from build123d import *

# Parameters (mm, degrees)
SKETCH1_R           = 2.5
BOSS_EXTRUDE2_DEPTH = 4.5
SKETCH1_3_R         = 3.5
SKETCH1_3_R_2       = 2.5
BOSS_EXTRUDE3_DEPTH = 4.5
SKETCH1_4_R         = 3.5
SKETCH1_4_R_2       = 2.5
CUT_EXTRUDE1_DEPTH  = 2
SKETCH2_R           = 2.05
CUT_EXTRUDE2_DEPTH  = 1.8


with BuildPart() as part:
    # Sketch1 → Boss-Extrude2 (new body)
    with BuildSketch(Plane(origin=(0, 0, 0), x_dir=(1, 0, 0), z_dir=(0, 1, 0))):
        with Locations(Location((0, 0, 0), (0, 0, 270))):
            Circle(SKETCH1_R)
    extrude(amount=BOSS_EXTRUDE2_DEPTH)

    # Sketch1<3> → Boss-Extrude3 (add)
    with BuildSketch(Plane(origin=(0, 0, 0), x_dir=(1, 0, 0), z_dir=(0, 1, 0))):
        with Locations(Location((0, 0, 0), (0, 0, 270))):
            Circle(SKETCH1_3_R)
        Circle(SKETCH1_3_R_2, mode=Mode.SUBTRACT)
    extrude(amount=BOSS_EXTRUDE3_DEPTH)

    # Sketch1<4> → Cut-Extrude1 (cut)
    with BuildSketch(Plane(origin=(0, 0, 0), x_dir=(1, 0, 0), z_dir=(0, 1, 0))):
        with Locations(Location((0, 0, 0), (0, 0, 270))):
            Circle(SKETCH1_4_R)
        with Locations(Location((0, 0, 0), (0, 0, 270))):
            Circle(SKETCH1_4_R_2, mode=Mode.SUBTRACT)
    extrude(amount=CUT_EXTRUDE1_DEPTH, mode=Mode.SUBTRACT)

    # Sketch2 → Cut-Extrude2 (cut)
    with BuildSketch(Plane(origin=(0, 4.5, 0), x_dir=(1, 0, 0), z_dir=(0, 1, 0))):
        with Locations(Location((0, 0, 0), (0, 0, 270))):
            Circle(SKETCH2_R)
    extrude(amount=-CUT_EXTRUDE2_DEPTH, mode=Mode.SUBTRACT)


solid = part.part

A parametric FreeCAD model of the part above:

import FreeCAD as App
import Part
import Sketcher
from FreeCAD import Vector

doc = App.newDocument("Part")
body = doc.addObject("PartDesign::Body", "Body")

# Sketch on XZ plane
sketch1 = body.newObject("Sketcher::SketchObject", "Sketch")
sketch1.AttachmentSupport = (doc.getObject("XZ_Plane"), [""])
sketch1.MapMode = "FlatFace"
sketch1.addGeometry(Part.Circle(Vector(0, 0, 0), Vector(0, 0, 1), 2.5), False)
sketch1.addConstraint(Sketcher.Constraint("Coincident", 0, 3, -1, 1))
sketch1.addConstraint(Sketcher.Constraint("Diameter", 0, 5.0))
pad1 = body.newObject("PartDesign::Pad", "Pad")
pad1.Profile = sketch1
pad1.Length = 4.5
pad1.Reversed = True

# Sketch on XZ plane
sketch2 = body.newObject("Sketcher::SketchObject", "Sketch001")
sketch2.AttachmentSupport = (doc.getObject("XZ_Plane"), [""])
sketch2.MapMode = "FlatFace"
sketch2.addGeometry(Part.Circle(Vector(0, 0, 0), Vector(0, 0, 1), 3.5), False)
sketch2.addGeometry(Part.Circle(Vector(0, 0, 0), Vector(0, 0, 1), 2.5), False)
sketch2.addConstraint(Sketcher.Constraint("Coincident", 0, 3, -1, 1))
sketch2.addConstraint(Sketcher.Constraint("Coincident", 1, 3, -1, 1))
sketch2.addConstraint(Sketcher.Constraint("Diameter", 0, 7.0))
sketch2.addConstraint(Sketcher.Constraint("Diameter", 1, 5.0))
pad2 = body.newObject("PartDesign::Pad", "Pad001")
pad2.Profile = sketch2
pad2.Length = 4.5
pad2.Reversed = True

# Sketch on XZ plane
sketch3 = body.newObject("Sketcher::SketchObject", "Sketch002")
sketch3.AttachmentSupport = (doc.getObject("XZ_Plane"), [""])
sketch3.MapMode = "FlatFace"
sketch3.addGeometry(Part.Circle(Vector(0, 0, 0), Vector(0, 0, 1), 3.5), False)
sketch3.addGeometry(Part.Circle(Vector(0, 0, 0), Vector(0, 0, 1), 2.5), False)
sketch3.addConstraint(Sketcher.Constraint("Coincident", 0, 3, -1, 1))
sketch3.addConstraint(Sketcher.Constraint("Coincident", 1, 3, -1, 1))
sketch3.addConstraint(Sketcher.Constraint("Diameter", 0, 7.0))
sketch3.addConstraint(Sketcher.Constraint("Diameter", 1, 5.0))
pocket1 = body.newObject("PartDesign::Pocket", "Pocket")
pocket1.Profile = sketch3
pocket1.Length = 2

# Sketch on XZ plane
sketch4 = body.newObject("Sketcher::SketchObject", "Sketch003")
sketch4.AttachmentSupport = (doc.getObject("XZ_Plane"), [""])
sketch4.MapMode = "FlatFace"
sketch4.AttachmentOffset = App.Placement(Vector(0, 0, -4.5), App.Rotation())
sketch4.addGeometry(Part.Circle(Vector(0, 0, 0), Vector(0, 0, 1), 2), False)
sketch4.addConstraint(Sketcher.Constraint("Coincident", 0, 3, -1, 1))
sketch4.addConstraint(Sketcher.Constraint("Diameter", 0, 4.1))
pocket2 = body.newObject("PartDesign::Pocket", "Pocket001")
pocket2.Profile = sketch4
pocket2.Length = 1.8
pocket2.Reversed = True

doc.recompute()
